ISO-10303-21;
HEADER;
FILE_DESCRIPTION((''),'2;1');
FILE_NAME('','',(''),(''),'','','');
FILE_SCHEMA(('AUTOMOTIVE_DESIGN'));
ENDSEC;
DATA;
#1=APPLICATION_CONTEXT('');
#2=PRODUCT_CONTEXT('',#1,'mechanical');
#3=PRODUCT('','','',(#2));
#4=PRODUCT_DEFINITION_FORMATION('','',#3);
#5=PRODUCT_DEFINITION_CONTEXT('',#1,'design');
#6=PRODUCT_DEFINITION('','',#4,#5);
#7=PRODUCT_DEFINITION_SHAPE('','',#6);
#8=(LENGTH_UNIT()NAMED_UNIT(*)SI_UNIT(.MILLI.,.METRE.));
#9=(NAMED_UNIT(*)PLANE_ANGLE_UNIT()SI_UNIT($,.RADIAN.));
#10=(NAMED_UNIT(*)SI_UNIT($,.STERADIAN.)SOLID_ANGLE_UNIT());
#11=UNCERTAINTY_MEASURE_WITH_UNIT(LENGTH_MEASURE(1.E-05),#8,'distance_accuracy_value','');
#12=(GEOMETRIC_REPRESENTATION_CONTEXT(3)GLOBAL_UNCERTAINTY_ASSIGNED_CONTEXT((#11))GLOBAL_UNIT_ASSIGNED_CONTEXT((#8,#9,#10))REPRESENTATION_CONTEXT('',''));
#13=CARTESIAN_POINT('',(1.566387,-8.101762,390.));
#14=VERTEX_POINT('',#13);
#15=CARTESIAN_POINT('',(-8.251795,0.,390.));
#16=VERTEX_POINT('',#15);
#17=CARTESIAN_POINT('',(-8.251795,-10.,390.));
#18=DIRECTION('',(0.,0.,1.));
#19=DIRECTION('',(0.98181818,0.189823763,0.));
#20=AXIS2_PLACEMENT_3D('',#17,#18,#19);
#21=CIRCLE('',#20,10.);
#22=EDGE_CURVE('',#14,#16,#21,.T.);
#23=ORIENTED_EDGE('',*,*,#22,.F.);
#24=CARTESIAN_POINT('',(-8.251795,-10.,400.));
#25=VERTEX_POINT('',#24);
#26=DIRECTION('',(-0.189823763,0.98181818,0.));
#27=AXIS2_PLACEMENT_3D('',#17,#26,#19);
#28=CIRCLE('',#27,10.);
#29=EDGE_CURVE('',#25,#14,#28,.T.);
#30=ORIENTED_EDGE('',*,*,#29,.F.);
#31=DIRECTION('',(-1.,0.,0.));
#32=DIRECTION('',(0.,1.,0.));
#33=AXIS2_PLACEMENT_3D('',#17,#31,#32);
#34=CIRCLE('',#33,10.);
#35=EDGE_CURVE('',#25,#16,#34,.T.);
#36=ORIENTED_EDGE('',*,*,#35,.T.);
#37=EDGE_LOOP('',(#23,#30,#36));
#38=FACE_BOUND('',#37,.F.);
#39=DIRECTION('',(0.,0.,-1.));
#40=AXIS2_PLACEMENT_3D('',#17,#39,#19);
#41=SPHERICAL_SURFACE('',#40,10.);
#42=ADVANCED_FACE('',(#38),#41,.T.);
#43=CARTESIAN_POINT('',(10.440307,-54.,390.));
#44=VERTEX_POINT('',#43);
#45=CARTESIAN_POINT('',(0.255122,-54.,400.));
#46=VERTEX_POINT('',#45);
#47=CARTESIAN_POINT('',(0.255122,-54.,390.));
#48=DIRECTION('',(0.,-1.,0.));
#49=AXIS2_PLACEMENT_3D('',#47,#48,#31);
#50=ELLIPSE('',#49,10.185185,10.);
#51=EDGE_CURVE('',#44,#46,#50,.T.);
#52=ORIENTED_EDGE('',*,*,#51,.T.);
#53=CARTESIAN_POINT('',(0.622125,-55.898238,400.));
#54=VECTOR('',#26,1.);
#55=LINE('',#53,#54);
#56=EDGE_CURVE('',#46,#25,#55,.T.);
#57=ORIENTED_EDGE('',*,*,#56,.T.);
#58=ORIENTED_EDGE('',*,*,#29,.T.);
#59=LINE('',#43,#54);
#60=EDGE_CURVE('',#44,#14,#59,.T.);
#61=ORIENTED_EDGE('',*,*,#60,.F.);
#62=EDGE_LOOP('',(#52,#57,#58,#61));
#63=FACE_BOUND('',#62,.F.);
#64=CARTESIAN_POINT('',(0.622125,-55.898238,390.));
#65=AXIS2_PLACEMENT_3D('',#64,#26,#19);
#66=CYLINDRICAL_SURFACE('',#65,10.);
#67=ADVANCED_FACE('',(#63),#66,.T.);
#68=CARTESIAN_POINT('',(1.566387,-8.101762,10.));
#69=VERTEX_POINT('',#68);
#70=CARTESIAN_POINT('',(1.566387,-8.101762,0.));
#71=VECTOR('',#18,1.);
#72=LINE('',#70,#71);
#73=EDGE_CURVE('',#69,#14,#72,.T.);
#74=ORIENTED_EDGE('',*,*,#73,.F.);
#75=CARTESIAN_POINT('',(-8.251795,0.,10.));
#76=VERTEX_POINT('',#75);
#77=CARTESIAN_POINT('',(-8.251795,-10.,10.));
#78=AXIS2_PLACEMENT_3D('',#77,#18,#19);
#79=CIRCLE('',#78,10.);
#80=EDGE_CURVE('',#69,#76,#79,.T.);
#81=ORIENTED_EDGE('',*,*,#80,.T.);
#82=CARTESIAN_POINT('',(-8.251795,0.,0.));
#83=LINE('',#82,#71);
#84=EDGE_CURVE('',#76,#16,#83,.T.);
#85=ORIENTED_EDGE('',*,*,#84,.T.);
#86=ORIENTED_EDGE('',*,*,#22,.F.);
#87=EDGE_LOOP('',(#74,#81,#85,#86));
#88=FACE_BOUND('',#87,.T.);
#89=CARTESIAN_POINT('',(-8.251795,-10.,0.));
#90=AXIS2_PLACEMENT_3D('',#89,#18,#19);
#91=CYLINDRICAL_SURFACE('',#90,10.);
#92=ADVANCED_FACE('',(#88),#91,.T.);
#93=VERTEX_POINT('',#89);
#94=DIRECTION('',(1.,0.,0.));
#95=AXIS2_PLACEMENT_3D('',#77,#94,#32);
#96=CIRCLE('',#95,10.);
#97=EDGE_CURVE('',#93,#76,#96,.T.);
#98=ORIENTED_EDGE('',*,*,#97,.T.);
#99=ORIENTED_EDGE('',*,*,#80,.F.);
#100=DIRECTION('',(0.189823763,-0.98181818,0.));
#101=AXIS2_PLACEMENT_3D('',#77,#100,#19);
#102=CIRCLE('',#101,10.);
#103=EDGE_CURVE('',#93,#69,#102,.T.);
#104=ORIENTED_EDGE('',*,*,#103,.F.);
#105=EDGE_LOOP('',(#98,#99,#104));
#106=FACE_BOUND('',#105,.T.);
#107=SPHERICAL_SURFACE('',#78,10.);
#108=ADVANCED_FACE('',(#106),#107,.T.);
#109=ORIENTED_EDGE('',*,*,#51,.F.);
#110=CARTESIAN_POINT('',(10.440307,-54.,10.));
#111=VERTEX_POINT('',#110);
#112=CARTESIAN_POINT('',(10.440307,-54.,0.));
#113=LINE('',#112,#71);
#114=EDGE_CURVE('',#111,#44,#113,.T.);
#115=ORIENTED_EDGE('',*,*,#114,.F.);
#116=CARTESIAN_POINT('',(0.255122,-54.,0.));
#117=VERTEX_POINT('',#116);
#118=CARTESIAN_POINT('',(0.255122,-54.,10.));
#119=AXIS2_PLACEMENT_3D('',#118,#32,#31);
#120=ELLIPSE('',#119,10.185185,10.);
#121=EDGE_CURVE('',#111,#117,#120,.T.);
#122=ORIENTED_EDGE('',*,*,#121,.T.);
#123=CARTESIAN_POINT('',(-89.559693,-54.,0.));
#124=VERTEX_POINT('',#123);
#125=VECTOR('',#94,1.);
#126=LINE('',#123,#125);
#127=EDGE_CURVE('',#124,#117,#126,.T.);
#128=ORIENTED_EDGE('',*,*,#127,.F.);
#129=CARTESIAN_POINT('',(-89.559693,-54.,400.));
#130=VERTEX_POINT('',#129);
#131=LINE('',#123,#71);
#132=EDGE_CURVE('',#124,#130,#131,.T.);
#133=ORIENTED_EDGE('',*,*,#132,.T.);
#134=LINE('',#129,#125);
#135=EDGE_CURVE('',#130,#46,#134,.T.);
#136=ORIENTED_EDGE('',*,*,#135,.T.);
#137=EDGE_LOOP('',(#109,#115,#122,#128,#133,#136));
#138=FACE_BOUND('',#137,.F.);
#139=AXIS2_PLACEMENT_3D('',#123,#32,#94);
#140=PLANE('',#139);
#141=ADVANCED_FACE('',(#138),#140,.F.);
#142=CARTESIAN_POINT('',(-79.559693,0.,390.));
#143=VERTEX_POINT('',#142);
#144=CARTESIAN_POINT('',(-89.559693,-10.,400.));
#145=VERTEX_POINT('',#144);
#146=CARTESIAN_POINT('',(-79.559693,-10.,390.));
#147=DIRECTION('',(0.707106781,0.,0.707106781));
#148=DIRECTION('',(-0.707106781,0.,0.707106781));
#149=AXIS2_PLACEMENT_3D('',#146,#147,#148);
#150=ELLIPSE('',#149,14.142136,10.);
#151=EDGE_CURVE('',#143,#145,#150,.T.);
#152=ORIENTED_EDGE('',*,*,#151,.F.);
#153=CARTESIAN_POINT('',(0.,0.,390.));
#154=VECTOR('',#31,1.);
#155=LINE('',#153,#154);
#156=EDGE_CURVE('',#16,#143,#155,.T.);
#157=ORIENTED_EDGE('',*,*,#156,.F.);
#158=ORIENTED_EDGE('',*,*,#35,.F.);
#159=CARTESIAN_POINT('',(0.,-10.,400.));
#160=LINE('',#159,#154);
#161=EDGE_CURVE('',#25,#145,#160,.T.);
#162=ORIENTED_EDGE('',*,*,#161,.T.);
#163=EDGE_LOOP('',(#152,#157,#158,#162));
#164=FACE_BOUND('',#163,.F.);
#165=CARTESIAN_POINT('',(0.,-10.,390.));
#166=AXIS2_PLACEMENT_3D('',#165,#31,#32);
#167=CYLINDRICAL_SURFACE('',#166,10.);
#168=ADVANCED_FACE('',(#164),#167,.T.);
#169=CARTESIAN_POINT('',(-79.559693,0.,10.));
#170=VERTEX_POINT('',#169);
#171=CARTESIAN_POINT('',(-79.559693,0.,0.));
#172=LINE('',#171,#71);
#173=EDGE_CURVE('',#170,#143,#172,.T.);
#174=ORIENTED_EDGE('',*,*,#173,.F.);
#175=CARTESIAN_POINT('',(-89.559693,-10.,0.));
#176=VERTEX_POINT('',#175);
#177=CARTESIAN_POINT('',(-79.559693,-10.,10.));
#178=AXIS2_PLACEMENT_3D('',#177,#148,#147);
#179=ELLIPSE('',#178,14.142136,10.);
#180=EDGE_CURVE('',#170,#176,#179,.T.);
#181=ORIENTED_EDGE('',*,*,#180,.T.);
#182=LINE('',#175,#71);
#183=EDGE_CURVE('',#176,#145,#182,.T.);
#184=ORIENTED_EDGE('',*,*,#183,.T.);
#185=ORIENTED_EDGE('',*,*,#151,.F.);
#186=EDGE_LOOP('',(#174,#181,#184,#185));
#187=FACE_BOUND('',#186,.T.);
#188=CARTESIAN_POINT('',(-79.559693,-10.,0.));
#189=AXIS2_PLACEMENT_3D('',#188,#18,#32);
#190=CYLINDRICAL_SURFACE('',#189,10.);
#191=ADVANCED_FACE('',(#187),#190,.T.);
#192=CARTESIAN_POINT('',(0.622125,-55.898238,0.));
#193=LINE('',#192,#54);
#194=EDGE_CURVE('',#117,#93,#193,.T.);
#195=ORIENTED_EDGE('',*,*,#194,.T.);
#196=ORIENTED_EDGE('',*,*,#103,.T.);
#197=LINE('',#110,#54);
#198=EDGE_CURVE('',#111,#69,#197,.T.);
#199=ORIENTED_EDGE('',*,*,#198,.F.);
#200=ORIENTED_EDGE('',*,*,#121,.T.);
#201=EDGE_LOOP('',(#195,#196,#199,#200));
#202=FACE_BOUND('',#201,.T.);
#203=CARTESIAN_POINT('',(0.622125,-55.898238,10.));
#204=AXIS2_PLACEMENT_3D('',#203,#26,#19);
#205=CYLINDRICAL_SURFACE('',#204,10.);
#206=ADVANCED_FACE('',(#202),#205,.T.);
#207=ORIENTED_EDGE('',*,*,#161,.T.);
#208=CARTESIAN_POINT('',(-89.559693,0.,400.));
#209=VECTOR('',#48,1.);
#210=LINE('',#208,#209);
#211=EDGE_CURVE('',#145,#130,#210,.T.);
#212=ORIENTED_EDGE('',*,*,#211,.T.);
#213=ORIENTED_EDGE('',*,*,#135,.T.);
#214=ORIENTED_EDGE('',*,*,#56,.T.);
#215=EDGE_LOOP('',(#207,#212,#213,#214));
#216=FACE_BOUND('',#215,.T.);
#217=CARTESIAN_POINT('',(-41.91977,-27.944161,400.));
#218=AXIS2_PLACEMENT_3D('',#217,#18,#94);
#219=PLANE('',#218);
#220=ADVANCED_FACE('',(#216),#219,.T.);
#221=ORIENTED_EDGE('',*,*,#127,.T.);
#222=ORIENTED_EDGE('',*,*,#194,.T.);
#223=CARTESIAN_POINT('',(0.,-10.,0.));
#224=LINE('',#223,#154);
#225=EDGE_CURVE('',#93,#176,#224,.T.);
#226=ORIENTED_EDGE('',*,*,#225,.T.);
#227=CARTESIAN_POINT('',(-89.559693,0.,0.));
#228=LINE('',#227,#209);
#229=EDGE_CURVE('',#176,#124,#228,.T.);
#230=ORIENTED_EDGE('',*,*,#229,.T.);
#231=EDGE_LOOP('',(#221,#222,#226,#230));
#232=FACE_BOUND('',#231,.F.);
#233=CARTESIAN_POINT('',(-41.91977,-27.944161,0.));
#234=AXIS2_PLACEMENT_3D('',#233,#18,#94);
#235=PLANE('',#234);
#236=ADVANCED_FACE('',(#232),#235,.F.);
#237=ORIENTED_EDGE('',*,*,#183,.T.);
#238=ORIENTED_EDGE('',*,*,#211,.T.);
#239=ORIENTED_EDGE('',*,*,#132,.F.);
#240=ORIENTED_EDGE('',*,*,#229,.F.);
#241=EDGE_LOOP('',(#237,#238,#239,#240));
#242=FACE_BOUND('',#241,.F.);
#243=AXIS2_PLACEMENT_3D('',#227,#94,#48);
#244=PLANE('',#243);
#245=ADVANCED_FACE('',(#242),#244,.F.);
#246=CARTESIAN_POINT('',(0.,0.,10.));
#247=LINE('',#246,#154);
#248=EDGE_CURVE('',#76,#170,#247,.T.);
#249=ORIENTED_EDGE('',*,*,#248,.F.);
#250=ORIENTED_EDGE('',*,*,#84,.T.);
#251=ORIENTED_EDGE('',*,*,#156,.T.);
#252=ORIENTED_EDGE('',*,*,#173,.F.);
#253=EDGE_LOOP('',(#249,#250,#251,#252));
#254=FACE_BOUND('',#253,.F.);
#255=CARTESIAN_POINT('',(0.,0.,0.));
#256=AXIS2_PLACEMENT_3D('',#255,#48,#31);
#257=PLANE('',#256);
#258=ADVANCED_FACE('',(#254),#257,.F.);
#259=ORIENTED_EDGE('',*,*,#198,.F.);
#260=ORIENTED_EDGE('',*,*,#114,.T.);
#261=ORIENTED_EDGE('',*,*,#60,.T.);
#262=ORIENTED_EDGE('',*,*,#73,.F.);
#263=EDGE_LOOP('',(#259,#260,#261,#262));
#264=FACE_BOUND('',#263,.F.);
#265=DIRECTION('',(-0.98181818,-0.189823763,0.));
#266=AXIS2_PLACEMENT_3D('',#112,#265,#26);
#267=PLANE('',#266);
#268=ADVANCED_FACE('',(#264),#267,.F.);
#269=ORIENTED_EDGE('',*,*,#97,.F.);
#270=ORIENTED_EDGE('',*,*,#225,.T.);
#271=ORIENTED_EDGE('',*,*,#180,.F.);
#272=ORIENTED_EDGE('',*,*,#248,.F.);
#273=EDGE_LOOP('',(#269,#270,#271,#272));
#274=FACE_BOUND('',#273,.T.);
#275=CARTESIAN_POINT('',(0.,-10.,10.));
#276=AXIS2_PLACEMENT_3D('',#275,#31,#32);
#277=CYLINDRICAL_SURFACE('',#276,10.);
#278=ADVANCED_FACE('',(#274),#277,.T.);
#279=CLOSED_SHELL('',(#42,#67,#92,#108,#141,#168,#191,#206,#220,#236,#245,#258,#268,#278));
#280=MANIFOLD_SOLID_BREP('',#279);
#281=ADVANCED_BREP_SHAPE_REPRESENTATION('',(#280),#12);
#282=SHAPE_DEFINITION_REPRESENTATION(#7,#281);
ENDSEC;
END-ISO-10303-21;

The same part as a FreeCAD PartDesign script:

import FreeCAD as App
import Part
import Sketcher

V = App.Vector
Q = App.Units.Quantity


def edges_at(feature, points):
    """Names of the edges that pass closest to the given points."""
    edges = feature.Shape.Edges
    near = lambda p: min(range(len(edges)), key=lambda i: edges[i].distToShape(Part.Vertex(*p))[0])
    return sorted({f"Edge{near(p) + 1}" for p in points})

doc = App.newDocument("Part")
body = doc.addObject("PartDesign::Body", "Body")

sketch1 = body.newObject("Sketcher::SketchObject", "Sketch")
sketch1.AttachmentSupport = (doc.getObject("XY_Plane"), [""])
sketch1.MapMode = "FlatFace"
sketch1.addGeometry([
    Part.LineSegment(V(10, -54, 0), V(0, 0, 0)),
    Part.LineSegment(V(0, 0, 0), V(-90, 0, 0)),
    Part.LineSegment(V(-90, 0, 0), V(-90, -54, 0)),
    Part.LineSegment(V(-90, -54, 0), V(10, -54, 0)),
], False)
sketch1.addConstraint([
    Sketcher.Constraint("Coincident", 0, 2, 1, 1),
    Sketcher.Constraint("Coincident", 1, 2, 2, 1),
    Sketcher.Constraint("Coincident", 2, 2, 3, 1),
    Sketcher.Constraint("Coincident", 3, 2, 0, 1),
    Sketcher.Constraint("Horizontal", 1),
    Sketcher.Constraint("Vertical", 2),
    Sketcher.Constraint("Horizontal", 3),
    Sketcher.Constraint("Coincident", 0, 2, -1, 1),
    Sketcher.Constraint("DistanceX", 3, 1, 3, 2, Q("100 mm")),
    Sketcher.Constraint("DistanceY", 2, 2, 2, 1, Q("54 mm")),
    Sketcher.Constraint("Distance", 0, Q("55 mm")),
])
pad1 = body.newObject("PartDesign::Pad", "Pad")
pad1.Profile = sketch1
pad1.Length = 400
doc.recompute()

fillet = body.newObject("PartDesign::Fillet", "Fillet")
fillet.Base = (pad1, edges_at(pad1, [
    (0, 0, 200),
    (5.22, -27, 400),
    (5.22, -27, 0),
    (-89.56, 0, 200),
    (-44.78, 0, 0),
    (-44.78, 0, 400),
]))
fillet.Radius = 10

doc.recompute()
